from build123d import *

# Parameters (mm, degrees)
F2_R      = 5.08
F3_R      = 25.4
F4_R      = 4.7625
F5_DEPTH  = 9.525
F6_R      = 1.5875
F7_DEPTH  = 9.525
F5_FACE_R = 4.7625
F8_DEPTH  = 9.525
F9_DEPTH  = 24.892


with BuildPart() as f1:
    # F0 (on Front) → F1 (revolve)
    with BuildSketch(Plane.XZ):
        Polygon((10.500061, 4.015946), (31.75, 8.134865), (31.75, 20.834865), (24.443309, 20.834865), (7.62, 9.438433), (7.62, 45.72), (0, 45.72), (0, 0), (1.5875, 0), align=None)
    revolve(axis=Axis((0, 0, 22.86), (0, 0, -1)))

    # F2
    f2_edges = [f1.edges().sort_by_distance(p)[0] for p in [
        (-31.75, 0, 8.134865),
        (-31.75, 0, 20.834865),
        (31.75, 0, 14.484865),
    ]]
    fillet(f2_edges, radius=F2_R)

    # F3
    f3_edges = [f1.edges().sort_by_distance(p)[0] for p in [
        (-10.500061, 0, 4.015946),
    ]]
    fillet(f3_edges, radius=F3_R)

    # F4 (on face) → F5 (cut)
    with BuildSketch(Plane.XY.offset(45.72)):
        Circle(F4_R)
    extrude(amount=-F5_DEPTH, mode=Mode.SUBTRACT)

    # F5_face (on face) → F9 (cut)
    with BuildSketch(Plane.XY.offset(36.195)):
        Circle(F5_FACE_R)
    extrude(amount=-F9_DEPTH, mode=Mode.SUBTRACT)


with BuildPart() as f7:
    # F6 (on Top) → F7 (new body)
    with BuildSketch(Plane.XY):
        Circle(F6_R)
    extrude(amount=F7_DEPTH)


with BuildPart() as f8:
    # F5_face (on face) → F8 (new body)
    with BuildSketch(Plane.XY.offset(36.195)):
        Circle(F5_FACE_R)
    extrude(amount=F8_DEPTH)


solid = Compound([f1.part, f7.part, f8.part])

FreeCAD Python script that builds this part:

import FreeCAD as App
import Part
import Sketcher

V = App.Vector
Q = App.Units.Quantity


def edges_at(feature, points):
    """Names of the edges that pass closest to the given points."""
    edges = feature.Shape.Edges
    near = lambda p: min(range(len(edges)), key=lambda i: edges[i].distToShape(Part.Vertex(*p))[0])
    return sorted({f"Edge{near(p) + 1}" for p in points})

doc = App.newDocument("Part")
body = doc.addObject("PartDesign::Body", "Body")

# Sketch on XZ plane
sketch1 = body.newObject("Sketcher::SketchObject", "Sketch")
sketch1.AttachmentSupport = (doc.getObject("XZ_Plane"), [""])
sketch1.MapMode = "FlatFace"
sketch1.addGeometry([
    Part.LineSegment(V(10.5, 4, 0), V(31.8, 8.1, 0)),  # 0
    Part.LineSegment(V(31.8, 8.1, 0), V(31.8, 20.8, 0)),  # 1
    Part.LineSegment(V(31.8, 20.8, 0), V(24.4, 20.8, 0)),  # 2
    Part.LineSegment(V(24.4, 20.8, 0), V(7.6, 9.4, 0)),  # 3
    Part.LineSegment(V(7.6, 9.4, 0), V(7.6, 45.7, 0)),  # 4
    Part.LineSegment(V(7.6, 45.7, 0), V(0, 45.7, 0)),  # 5
    Part.LineSegment(V(0, 45.7, 0), V(0, 0, 0)),  # 6
    Part.LineSegment(V(0, 0, 0), V(1.6, 0, 0)),  # 7
    Part.LineSegment(V(1.6, 0, 0), V(10.5, 4, 0)),  # 8
], False)
sketch1.addConstraint([
    Sketcher.Constraint("Coincident", 0, 2, 1, 1),
    Sketcher.Constraint("Coincident", 1, 2, 2, 1),
    Sketcher.Constraint("Coincident", 2, 2, 3, 1),
    Sketcher.Constraint("Coincident", 3, 2, 4, 1),
    Sketcher.Constraint("Coincident", 4, 2, 5, 1),
    Sketcher.Constraint("Coincident", 5, 2, 6, 1),
    Sketcher.Constraint("Coincident", 6, 2, 7, 1),
    Sketcher.Constraint("Coincident", 7, 2, 8, 1),
    Sketcher.Constraint("Coincident", 8, 2, 0, 1),
    Sketcher.Constraint("Vertical", 1),
    Sketcher.Constraint("Horizontal", 2),
    Sketcher.Constraint("Vertical", 4),
    Sketcher.Constraint("Horizontal", 5),
    Sketcher.Constraint("Vertical", 6),
    Sketcher.Constraint("Horizontal", 7),
    Sketcher.Constraint("Coincident", 6, 2, -1, 1),
    Sketcher.Constraint("DistanceX", 5, 2, 5, 1, Q("0.3 in")),
    Sketcher.Constraint("DistanceY", 1, 1, 1, 2, Q("0.5 in")),
    Sketcher.Constraint("DistanceY", 6, 2, 6, 1, Q("1.8 in")),
    Sketcher.Constraint("Distance", 3, Q("0.8 in")),
    Sketcher.Constraint("DistanceX", 7, 1, 7, 2, Q("0.0625 in")),
    Sketcher.Constraint("DistanceX", -1, 1, 0, 2, Q("1.25 in")),
    Sketcher.Constraint("DistanceX", 2, 2, 2, 1, 7.306691),
    Sketcher.Constraint("Distance", 8, 9.77556),
    Sketcher.Constraint("DistanceY", 4, 1, 4, 2, 36.281567),
    Sketcher.Constraint("DistanceX", -1, 1, 8, 2, 10.500061),
])
revolution = body.newObject("PartDesign::Revolution", "Revolution")
revolution.Profile = sketch1
revolution.ReferenceAxis = (sketch1, ["V_Axis"])
revolution.Angle = 360
doc.recompute()

fillet = body.newObject("PartDesign::Fillet", "Fillet")
fillet.Base = (revolution, edges_at(revolution, [(-31.75, 0, 8.135), (-31.75, 0, 20.835), (31.75, 0, 14.485)]))
fillet.Radius = Q("0.2 in")
doc.recompute()

fillet2 = body.newObject("PartDesign::Fillet", "Fillet001")
fillet2.Base = (fillet, edges_at(fillet, [(-10.5, 0, 4.016)]))
fillet2.Radius = Q("1 in")

# Sketch on XY plane
sketch2 = body.newObject("Sketcher::SketchObject", "Sketch001")
sketch2.AttachmentSupport = (doc.getObject("XY_Plane"), [""])
sketch2.MapMode = "FlatFace"
sketch2.AttachmentOffset = App.Placement(V(0, 0, 1.8 * 25.4), App.Rotation())
sketch2.addGeometry(Part.Circle(V(0, 0, 0), V(0, 0, 1), 4.8), False)
sketch2.addConstraint([
    Sketcher.Constraint("Coincident", 0, 3, -1, 1),
    Sketcher.Constraint("Diameter", 0, Q("0.375 in")),
])
pocket1 = body.newObject("PartDesign::Pocket", "Pocket")
pocket1.Profile = sketch2
pocket1.Length = Q("0.375 in")

# Sketch on XY plane
sketch3 = body.newObject("Sketcher::SketchObject", "Sketch002")
sketch3.AttachmentSupport = (doc.getObject("XY_Plane"), [""])
sketch3.MapMode = "FlatFace"
sketch3.AttachmentOffset = App.Placement(V(0, 0, 1.425 * 25.4), App.Rotation())
sketch3.addGeometry(Part.Circle(V(0, 0, 0), V(0, 0, 1), 4.8), False)
sketch3.addConstraint([
    Sketcher.Constraint("Coincident", 0, 3, -1, 1),
    Sketcher.Constraint("Diameter", 0, Q("0.375 in")),
])
pocket2 = body.newObject("PartDesign::Pocket", "Pocket001")
pocket2.Profile = sketch3
pocket2.Length = Q("0.98 in")
body2 = doc.addObject("PartDesign::Body", "Body001")

# Sketch on XY plane
sketch4 = body2.newObject("Sketcher::SketchObject", "Sketch003")
sketch4.AttachmentSupport = (doc.getObject("XY_Plane001"), [""])
sketch4.MapMode = "FlatFace"
sketch4.addGeometry(Part.Circle(V(0, 0, 0), V(0, 0, 1), 1.6), False)
sketch4.addConstraint([
    Sketcher.Constraint("Coincident", 0, 3, -1, 1),
    Sketcher.Constraint("Diameter", 0, Q("0.125 in")),
])
pad1 = body2.newObject("PartDesign::Pad", "Pad")
pad1.Profile = sketch4
pad1.Length = Q("0.375 in")
body3 = doc.addObject("PartDesign::Body", "Body002")

# Sketch on XY plane
sketch5 = body3.newObject("Sketcher::SketchObject", "Sketch004")
sketch5.AttachmentSupport = (doc.getObject("XY_Plane002"), [""])
sketch5.MapMode = "FlatFace"
sketch5.AttachmentOffset = App.Placement(V(0, 0, 1.425 * 25.4), App.Rotation())
sketch5.addGeometry(Part.Circle(V(0, 0, 0), V(0, 0, 1), 4.8), False)
sketch5.addConstraint([
    Sketcher.Constraint("Coincident", 0, 3, -1, 1),
    Sketcher.Constraint("Diameter", 0, Q("0.375 in")),
])
pad2 = body3.newObject("PartDesign::Pad", "Pad001")
pad2.Profile = sketch5
pad2.Length = Q("0.375 in")

doc.recompute()
